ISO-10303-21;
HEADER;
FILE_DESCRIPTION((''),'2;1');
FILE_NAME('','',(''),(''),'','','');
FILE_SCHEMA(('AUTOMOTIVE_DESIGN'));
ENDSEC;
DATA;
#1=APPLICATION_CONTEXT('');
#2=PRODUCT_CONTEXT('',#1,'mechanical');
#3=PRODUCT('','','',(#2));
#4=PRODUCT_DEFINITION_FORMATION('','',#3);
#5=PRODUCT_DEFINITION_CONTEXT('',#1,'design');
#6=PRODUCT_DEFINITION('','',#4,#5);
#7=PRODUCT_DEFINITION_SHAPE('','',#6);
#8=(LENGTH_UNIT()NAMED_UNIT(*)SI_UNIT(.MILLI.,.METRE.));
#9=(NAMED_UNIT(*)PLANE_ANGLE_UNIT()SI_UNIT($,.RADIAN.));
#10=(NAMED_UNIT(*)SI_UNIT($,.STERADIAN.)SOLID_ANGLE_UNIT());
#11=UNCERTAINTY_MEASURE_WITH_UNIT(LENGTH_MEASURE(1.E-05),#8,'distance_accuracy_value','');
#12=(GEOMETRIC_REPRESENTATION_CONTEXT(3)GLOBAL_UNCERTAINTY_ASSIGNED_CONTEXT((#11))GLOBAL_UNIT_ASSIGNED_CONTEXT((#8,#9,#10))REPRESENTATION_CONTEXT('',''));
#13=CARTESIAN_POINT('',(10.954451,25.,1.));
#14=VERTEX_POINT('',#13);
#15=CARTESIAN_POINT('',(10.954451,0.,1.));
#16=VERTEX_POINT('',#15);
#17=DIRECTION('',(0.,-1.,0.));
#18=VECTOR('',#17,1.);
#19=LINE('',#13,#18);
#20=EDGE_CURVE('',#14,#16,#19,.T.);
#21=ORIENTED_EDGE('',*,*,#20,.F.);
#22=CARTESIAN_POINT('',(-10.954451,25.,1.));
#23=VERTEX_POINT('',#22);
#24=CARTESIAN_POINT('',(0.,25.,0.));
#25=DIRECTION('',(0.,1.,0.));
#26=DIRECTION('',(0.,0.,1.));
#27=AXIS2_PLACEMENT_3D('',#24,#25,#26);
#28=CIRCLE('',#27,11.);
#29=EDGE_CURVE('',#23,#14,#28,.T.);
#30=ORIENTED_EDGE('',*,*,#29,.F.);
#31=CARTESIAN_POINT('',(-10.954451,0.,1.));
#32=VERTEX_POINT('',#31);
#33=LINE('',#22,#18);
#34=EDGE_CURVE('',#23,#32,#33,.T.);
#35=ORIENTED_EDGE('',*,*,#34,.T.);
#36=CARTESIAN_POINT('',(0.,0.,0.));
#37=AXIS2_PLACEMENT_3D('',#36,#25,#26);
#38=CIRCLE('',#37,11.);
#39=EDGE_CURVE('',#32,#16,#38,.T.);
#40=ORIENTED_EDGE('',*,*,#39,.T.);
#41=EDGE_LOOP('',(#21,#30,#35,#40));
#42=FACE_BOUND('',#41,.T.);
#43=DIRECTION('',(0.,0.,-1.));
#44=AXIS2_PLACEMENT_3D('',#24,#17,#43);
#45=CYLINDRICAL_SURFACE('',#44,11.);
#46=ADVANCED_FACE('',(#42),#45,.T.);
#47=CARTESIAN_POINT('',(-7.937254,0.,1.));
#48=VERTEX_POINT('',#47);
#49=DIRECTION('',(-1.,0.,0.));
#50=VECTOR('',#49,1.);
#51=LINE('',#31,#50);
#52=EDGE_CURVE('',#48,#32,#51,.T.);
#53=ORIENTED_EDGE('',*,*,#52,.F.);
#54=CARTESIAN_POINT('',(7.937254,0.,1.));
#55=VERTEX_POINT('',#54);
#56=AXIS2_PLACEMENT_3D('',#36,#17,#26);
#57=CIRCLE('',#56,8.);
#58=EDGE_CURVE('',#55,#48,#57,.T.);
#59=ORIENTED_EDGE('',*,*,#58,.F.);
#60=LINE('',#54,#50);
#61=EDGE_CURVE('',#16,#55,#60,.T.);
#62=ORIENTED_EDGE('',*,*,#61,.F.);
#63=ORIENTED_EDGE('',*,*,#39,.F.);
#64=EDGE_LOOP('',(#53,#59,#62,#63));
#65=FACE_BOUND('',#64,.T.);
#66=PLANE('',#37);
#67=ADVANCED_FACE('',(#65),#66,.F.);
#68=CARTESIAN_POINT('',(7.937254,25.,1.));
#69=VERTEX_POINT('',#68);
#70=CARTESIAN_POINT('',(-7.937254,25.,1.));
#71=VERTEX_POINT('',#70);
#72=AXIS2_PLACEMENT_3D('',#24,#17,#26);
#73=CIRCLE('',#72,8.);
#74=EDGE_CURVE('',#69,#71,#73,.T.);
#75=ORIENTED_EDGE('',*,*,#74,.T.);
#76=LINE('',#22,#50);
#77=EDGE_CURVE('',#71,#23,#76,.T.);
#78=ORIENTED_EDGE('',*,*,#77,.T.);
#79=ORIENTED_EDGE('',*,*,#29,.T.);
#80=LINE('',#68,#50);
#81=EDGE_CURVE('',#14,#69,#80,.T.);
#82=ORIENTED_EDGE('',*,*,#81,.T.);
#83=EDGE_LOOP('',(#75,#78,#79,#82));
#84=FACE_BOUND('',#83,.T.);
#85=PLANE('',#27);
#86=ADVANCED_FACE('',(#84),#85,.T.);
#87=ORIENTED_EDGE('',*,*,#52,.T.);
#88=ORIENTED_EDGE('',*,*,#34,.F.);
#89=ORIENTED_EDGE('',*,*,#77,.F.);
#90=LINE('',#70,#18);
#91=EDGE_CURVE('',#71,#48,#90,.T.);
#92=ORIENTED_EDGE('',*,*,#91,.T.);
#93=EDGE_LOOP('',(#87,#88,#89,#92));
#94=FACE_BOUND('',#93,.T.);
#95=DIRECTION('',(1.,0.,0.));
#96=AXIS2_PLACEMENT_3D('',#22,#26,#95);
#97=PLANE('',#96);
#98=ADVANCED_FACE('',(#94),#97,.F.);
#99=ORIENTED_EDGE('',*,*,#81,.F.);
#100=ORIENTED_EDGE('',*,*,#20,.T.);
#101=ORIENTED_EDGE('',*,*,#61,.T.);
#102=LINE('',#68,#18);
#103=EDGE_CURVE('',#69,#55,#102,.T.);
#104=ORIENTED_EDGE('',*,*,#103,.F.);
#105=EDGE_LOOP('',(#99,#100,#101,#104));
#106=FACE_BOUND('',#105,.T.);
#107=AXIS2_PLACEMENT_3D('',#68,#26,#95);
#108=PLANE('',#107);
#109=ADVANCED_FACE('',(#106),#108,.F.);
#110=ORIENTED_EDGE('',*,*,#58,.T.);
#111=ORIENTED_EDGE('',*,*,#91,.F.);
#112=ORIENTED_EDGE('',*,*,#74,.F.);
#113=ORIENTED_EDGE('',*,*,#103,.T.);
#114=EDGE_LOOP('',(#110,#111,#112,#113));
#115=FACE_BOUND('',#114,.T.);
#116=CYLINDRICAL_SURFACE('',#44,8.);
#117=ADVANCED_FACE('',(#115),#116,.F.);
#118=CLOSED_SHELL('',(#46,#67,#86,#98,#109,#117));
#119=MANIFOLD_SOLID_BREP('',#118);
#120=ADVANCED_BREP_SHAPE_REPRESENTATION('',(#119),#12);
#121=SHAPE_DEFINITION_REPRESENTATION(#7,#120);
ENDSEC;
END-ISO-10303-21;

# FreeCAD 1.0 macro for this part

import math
import FreeCAD as App
import Part
import Sketcher

V = App.Vector
Q = App.Units.Quantity

doc = App.newDocument("Part")
body = doc.addObject("PartDesign::Body", "Body")

# Sketch on XZ plane
sketch1 = body.newObject("Sketcher::SketchObject", "Sketch")
sketch1.AttachmentSupport = (doc.getObject("XZ_Plane"), [""])
sketch1.MapMode = "FlatFace"
sketch1.addGeometry(Part.LineSegment(V(-7.937254, 1, 0), V(-10.954451, 1, 0)), False)
sketch1.addGeometry(Part.ArcOfCircle(Part.Circle(V(0, 0, 0), V(0, 0, 1), 11), math.radians(5.215909), math.radians(174.784091)), False)
sketch1.addGeometry(Part.LineSegment(V(10.954451, 1, 0), V(7.937254, 1, 0)), False)
sketch1.addGeometry(Part.ArcOfCircle(Part.Circle(V(0, 0, 0), V(0, 0, 1), 8), math.radians(7.180756), math.radians(172.819244)), False)
sketch1.addConstraint(Sketcher.Constraint("Coincident", 0, 2, 1, 2))
sketch1.addConstraint(Sketcher.Constraint("Coincident", 1, 1, 2, 1))
sketch1.addConstraint(Sketcher.Constraint("Coincident", 2, 2, 3, 1))
sketch1.addConstraint(Sketcher.Constraint("Coincident", 3, 2, 0, 1))
sketch1.addConstraint(Sketcher.Constraint("Horizontal", 0))
sketch1.addConstraint(Sketcher.Constraint("Horizontal", 2))
sketch1.addConstraint(Sketcher.Constraint("Coincident", 1, 3, -1, 1))
sketch1.addConstraint(Sketcher.Constraint("Coincident", 3, 3, -1, 1))
sketch1.addConstraint(Sketcher.Constraint("Horizontal", 0, 2, 1, 1))
sketch1.addConstraint(Sketcher.Constraint("Radius", 1, Q("11 mm")))
sketch1.addConstraint(Sketcher.Constraint("Radius", 3, Q("8 mm")))
sketch1.addConstraint(Sketcher.Constraint("DistanceY", -1, 1, 0, 2, Q("1 mm")))
pad1 = body.newObject("PartDesign::Pad", "Pad")
pad1.Profile = sketch1
pad1.Length = 25
pad1.Reversed = True

doc.recompute()
